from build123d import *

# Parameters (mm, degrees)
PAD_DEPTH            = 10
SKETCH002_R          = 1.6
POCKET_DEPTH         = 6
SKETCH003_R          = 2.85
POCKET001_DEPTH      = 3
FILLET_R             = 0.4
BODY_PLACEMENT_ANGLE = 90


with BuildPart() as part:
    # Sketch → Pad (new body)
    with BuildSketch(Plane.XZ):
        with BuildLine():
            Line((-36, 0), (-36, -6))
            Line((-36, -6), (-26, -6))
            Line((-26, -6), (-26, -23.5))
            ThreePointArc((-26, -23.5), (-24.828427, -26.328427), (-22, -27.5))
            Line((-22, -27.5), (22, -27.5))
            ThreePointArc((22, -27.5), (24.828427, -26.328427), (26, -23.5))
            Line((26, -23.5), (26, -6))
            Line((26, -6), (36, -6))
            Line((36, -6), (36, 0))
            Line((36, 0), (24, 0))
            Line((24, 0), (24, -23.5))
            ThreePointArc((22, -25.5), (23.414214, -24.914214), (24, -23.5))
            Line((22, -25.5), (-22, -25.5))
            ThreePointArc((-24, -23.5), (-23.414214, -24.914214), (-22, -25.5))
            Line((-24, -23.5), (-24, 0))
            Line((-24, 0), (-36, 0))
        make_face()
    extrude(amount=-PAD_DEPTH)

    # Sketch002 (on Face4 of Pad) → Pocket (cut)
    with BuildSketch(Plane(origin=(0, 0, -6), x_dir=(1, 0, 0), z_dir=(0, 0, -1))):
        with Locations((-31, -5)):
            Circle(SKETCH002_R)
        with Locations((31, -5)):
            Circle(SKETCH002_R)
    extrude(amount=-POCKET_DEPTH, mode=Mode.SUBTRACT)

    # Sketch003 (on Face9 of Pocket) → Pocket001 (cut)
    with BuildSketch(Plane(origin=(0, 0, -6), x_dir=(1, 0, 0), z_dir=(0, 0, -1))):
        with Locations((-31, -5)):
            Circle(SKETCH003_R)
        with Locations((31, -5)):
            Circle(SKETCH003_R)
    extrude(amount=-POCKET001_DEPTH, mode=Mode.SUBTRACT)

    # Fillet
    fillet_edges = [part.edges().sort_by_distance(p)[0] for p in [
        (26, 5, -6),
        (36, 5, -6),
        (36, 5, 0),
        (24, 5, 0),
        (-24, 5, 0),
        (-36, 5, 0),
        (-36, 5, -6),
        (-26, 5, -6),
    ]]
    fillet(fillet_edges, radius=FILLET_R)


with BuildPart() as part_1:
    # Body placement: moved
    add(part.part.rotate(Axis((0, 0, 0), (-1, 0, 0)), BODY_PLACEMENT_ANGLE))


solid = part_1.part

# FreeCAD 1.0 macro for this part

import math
import FreeCAD as App
import Part
import Sketcher
from FreeCAD import Vector


def edges_at(feature, points):
    """Names of the edges that pass closest to the given points."""
    edges = feature.Shape.Edges
    near = lambda p: min(range(len(edges)), key=lambda i: edges[i].distToShape(Part.Vertex(*p))[0])
    return sorted({f"Edge{near(p) + 1}" for p in points})

doc = App.newDocument("Part")
body = doc.addObject("PartDesign::Body", "Body")

sketch1 = doc.addObject("Sketcher::SketchObject", "Sketch")
body.addObject(sketch1)
sketch1.AttachmentSupport = (doc.XZ_Plane, [""])
sketch1.MapMode = "FlatFace"
sketch1.addGeometry(Part.LineSegment(Vector(-36, 0, 0), Vector(-36, -6, 0)), False)
sketch1.addGeometry(Part.LineSegment(Vector(-36, -6, 0), Vector(-26, -6, 0)), False)
sketch1.addGeometry(Part.LineSegment(Vector(-26, -6, 0), Vector(-26, -23.5, 0)), False)
sketch1.addGeometry(Part.ArcOfCircle(Part.Circle(Vector(-22, -23.5, 0), Vector(0, 0, 1), 4), math.radians(-180), math.radians(-90)), False)
sketch1.addGeometry(Part.LineSegment(Vector(-22, -27.5, 0), Vector(22, -27.5, 0)), False)
sketch1.addGeometry(Part.ArcOfCircle(Part.Circle(Vector(22, -23.5, 0), Vector(0, 0, 1), 4), math.radians(-90), math.radians(0)), False)
sketch1.addGeometry(Part.LineSegment(Vector(26, -23.5, 0), Vector(26, -6, 0)), False)
sketch1.addGeometry(Part.LineSegment(Vector(26, -6, 0), Vector(36, -6, 0)), False)
sketch1.addGeometry(Part.LineSegment(Vector(36, -6, 0), Vector(36, 0, 0)), False)
sketch1.addGeometry(Part.LineSegment(Vector(36, 0, 0), Vector(24, 0, 0)), False)
sketch1.addGeometry(Part.LineSegment(Vector(24, 0, 0), Vector(24, -23.5, 0)), False)
sketch1.addGeometry(Part.ArcOfCircle(Part.Circle(Vector(22, -23.5, 0), Vector(0, 0, 1), 2), math.radians(-90), math.radians(0)), False)
sketch1.addGeometry(Part.LineSegment(Vector(22, -25.5, 0), Vector(-22, -25.5, 0)), False)
sketch1.addGeometry(Part.ArcOfCircle(Part.Circle(Vector(-22, -23.5, 0), Vector(0, 0, 1), 2), math.radians(180), math.radians(270)), False)
sketch1.addGeometry(Part.LineSegment(Vector(-24, -23.5, 0), Vector(-24, 0, 0)), False)
sketch1.addGeometry(Part.LineSegment(Vector(-24, 0, 0), Vector(-36, 0, 0)), False)
sketch1.addConstraint(Sketcher.Constraint("Coincident", 0, 2, 1, 1))
sketch1.addConstraint(Sketcher.Constraint("Coincident", 1, 2, 2, 1))
sketch1.addConstraint(Sketcher.Constraint("Tangent", 2, 2, 3, 1))
sketch1.addConstraint(Sketcher.Constraint("Tangent", 3, 2, 4, 1))
sketch1.addConstraint(Sketcher.Constraint("Tangent", 4, 2, 5, 1))
sketch1.addConstraint(Sketcher.Constraint("Tangent", 5, 2, 6, 1))
sketch1.addConstraint(Sketcher.Constraint("Coincident", 6, 2, 7, 1))
sketch1.addConstraint(Sketcher.Constraint("Coincident", 7, 2, 8, 1))
sketch1.addConstraint(Sketcher.Constraint("Coincident", 8, 2, 9, 1))
sketch1.addConstraint(Sketcher.Constraint("Coincident", 9, 2, 10, 1))
sketch1.addConstraint(Sketcher.Constraint("Tangent", 10, 2, 11, 2))
sketch1.addConstraint(Sketcher.Constraint("Tangent", 11, 1, 12, 1))
sketch1.addConstraint(Sketcher.Constraint("Tangent", 12, 2, 13, 2))
sketch1.addConstraint(Sketcher.Constraint("Tangent", 13, 1, 14, 1))
sketch1.addConstraint(Sketcher.Constraint("Coincident", 14, 2, 15, 1))
sketch1.addConstraint(Sketcher.Constraint("Coincident", 15, 2, 0, 1))
sketch1.addConstraint(Sketcher.Constraint("Vertical", 0))
sketch1.addConstraint(Sketcher.Constraint("Horizontal", 1))
sketch1.addConstraint(Sketcher.Constraint("Vertical", 2))
sketch1.addConstraint(Sketcher.Constraint("Horizontal", 4))
sketch1.addConstraint(Sketcher.Constraint("Vertical", 6))
sketch1.addConstraint(Sketcher.Constraint("Horizontal", 7))
sketch1.addConstraint(Sketcher.Constraint("Vertical", 8))
sketch1.addConstraint(Sketcher.Constraint("Horizontal", 9))
sketch1.addConstraint(Sketcher.Constraint("Vertical", 10))
sketch1.addConstraint(Sketcher.Constraint("Horizontal", 12))
sketch1.addConstraint(Sketcher.Constraint("Vertical", 14))
sketch1.addConstraint(Sketcher.Constraint("Horizontal", 15))
sketch1.addConstraint(Sketcher.Constraint("Coincident", 11, 3, 5, 3))
sketch1.addConstraint(Sketcher.Constraint("Coincident", 13, 3, 3, 3))
sketch1.addConstraint(Sketcher.Constraint("Equal", 3, 5))
sketch1.addConstraint(Sketcher.Constraint("Symmetric", 9, 2, 14, 2, -1, 1))
sketch1.addConstraint(Sketcher.Constraint("Symmetric", 0, 2, 7, 2, -2))
sketch1.addConstraint(Sketcher.Constraint("PointOnObject", 8, 2, -1))
sketch1.addConstraint(Sketcher.Constraint("Radius", 3, 4.0))
sketch1.addConstraint(Sketcher.Constraint("Radius", 11, 1.999999))
sketch1.addConstraint(Sketcher.Constraint("DistanceX", 1, 1, 1, 2, 10.0))
sketch1.addConstraint(Sketcher.Constraint("DistanceX", 4, 1, 4, 2, 44.0))
sketch1.addConstraint(Sketcher.Constraint("DistanceY", 0, 2, 0, 1, 6.0))
sketch1.addConstraint(Sketcher.Constraint("DistanceY", 2, 2, 2, 1, 17.5))
pad1 = doc.addObject("PartDesign::Pad", "Pad")
body.addObject(pad1)
pad1.Profile = sketch1
pad1.Length = 10
pad1.Reversed = True

sketch2 = doc.addObject("Sketcher::SketchObject", "Sketch001")
body.addObject(sketch2)
sketch2.AttachmentSupport = (doc.XY_Plane, [""])
sketch2.MapMode = "FlatFace"
sketch2.AttachmentOffset = App.Placement(Vector(0, 0, -6), App.Rotation())
sketch2.addGeometry(Part.Circle(Vector(-31, 5, 0), Vector(0, 0, 1), 1.6), False)
sketch2.addGeometry(Part.Circle(Vector(31, 5, 0), Vector(0, 0, 1), 1.6), False)
sketch2.addConstraint(Sketcher.Constraint("Equal", 0, 1))
sketch2.addConstraint(Sketcher.Constraint("Symmetric", 0, 3, 1, 3, -2))
sketch2.addConstraint(Sketcher.Constraint("Diameter", 0, 3.2))
sketch2.addConstraint(Sketcher.Constraint("DistanceX", 0, 3, -1, 1, 31.0))
sketch2.addConstraint(Sketcher.Constraint("DistanceY", -1, 1, 0, 3, 5.0))
pocket1 = doc.addObject("PartDesign::Pocket", "Pocket")
body.addObject(pocket1)
pocket1.Profile = sketch2
pocket1.Length = 6
pocket1.Reversed = True

sketch3 = doc.addObject("Sketcher::SketchObject", "Sketch002")
body.addObject(sketch3)
sketch3.AttachmentSupport = (doc.XY_Plane, [""])
sketch3.MapMode = "FlatFace"
sketch3.AttachmentOffset = App.Placement(Vector(0, 0, -6), App.Rotation())
sketch3.addGeometry(Part.Circle(Vector(-31, 5, 0), Vector(0, 0, 1), 2.9), False)
sketch3.addGeometry(Part.Circle(Vector(31, 5, 0), Vector(0, 0, 1), 2.9), False)
sketch3.addConstraint(Sketcher.Constraint("Equal", 0, 1))
sketch3.addConstraint(Sketcher.Constraint("Symmetric", 0, 3, 1, 3, -2))
sketch3.addConstraint(Sketcher.Constraint("Diameter", 0, 5.7))
sketch3.addConstraint(Sketcher.Constraint("DistanceX", 0, 3, -1, 1, 31.0))
sketch3.addConstraint(Sketcher.Constraint("DistanceY", -1, 1, 0, 3, 5.0))
pocket2 = doc.addObject("PartDesign::Pocket", "Pocket001")
body.addObject(pocket2)
pocket2.Profile = sketch3
pocket2.Length = 3
pocket2.Reversed = True
doc.recompute()

fillet = doc.addObject("PartDesign::Fillet", "Fillet")
body.addObject(fillet)
fillet.Base = (pocket2, edges_at(pocket2, [
    (26, 5, -6),
    (36, 5, -6),
    (36, 5, 0),
    (24, 5, 0),
    (-24, 5, 0),
    (-36, 5, 0),
    (-36, 5, -6),
    (-26, 5, -6),
]))
fillet.Radius = 0.4
body2 = doc.addObject("PartDesign::Body", "Body001")
doc.recompute()

body.Placement = App.Placement(Vector(0, 0, 0), App.Rotation(Vector(-1, 0, 0), 90))
boolean = doc.addObject("PartDesign::Boolean", "Boolean")
body2.addObject(boolean)
boolean.Type = "Fuse"
boolean.addObjects([body])

doc.recompute()
